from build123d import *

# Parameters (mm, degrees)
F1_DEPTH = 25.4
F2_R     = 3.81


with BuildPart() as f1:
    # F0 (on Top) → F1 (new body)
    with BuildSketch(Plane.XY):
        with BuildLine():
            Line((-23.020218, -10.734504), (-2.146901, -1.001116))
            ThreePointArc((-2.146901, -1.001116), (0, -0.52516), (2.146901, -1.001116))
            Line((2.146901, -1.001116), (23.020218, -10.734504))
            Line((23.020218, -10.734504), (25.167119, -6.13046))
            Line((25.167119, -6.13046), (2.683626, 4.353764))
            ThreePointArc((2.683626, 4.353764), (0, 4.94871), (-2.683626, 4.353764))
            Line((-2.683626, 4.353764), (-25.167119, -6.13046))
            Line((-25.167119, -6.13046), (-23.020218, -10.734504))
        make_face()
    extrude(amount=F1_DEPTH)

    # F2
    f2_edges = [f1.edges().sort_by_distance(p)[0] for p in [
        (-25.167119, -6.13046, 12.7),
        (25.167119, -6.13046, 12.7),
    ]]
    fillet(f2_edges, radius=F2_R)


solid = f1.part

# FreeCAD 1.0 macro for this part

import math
import FreeCAD as App
import Part
import Sketcher

V = App.Vector
Q = App.Units.Quantity


def edges_at(feature, points):
    """Names of the edges that pass closest to the given points."""
    edges = feature.Shape.Edges
    near = lambda p: min(range(len(edges)), key=lambda i: edges[i].distToShape(Part.Vertex(*p))[0])
    return sorted({f"Edge{near(p) + 1}" for p in points})

doc = App.newDocument("Part")
body = doc.addObject("PartDesign::Body", "Body")

sketch1 = body.newObject("Sketcher::SketchObject", "Sketch")
sketch1.AttachmentSupport = (doc.getObject("XY_Plane"), [""])
sketch1.MapMode = "FlatFace"
sketch1.addGeometry([
    Part.LineSegment(V(-23.020218, -10.734504, 0), V(-2.146901, -1.001116, 0)),
    Part.ArcOfCircle(Part.Circle(V(0, -5.605165, 0), V(0, 0, 1), 5.080005), math.radians(65.000025), math.radians(114.999975)),
    Part.LineSegment(V(2.146901, -1.001116, 0), V(23.020218, -10.734504, 0)),
    Part.LineSegment(V(23.020218, -10.734504, 0), V(25.167119, -6.13046, 0)),
    Part.LineSegment(V(25.167119, -6.13046, 0), V(2.683626, 4.353764, 0)),
    Part.ArcOfCircle(Part.Circle(V(0, -1.401286, 0), V(0, 0, 1), 6.349996), math.radians(64.999982), math.radians(115.000018)),
    Part.LineSegment(V(-2.683626, 4.353764, 0), V(-25.167119, -6.13046, 0)),
    Part.LineSegment(V(-25.167119, -6.13046, 0), V(-23.020218, -10.734504, 0)),
], False)
sketch1.addConstraint([
    Sketcher.Constraint("Tangent", 0, 2, 1, 2),
    Sketcher.Constraint("Tangent", 1, 1, 2, 1),
    Sketcher.Constraint("Coincident", 2, 2, 3, 1),
    Sketcher.Constraint("Coincident", 3, 2, 4, 1),
    Sketcher.Constraint("Tangent", 4, 2, 5, 1),
    Sketcher.Constraint("Tangent", 5, 2, 6, 1),
    Sketcher.Constraint("Coincident", 6, 2, 7, 1),
    Sketcher.Constraint("Coincident", 7, 2, 0, 1),
    Sketcher.Constraint("Symmetric", 0, 2, 1, 1, -2),
    Sketcher.Constraint("Symmetric", 4, 2, 5, 2, -2),
    Sketcher.Constraint("Perpendicular", 2, 3),
    Sketcher.Constraint("Perpendicular", 3, 4),
    Sketcher.Constraint("Perpendicular", 6, 7),
    Sketcher.Constraint("Horizontal", 3, 2, 6, 2),
    Sketcher.Constraint("Radius", 5, Q("0.2499998 in")),
    Sketcher.Constraint("Angle", 0, Q("25.000001 deg")),
    Sketcher.Constraint("Distance", 3, Q("0.2 in")),
    Sketcher.Constraint("Radius", 1, Q("5.080005 mm")),
    Sketcher.Constraint("Distance", 4, Q("24.807789 mm")),
    Sketcher.Constraint("DistanceY", 3, 2, -1, 1, Q("6.13046 mm")),
])
pad1 = body.newObject("PartDesign::Pad", "Pad")
pad1.Profile = sketch1
pad1.Length = Q("1 in")
doc.recompute()

fillet = body.newObject("PartDesign::Fillet", "Fillet")
fillet.Base = (pad1, edges_at(pad1, [(-25.167, -6.13, 12.7), (25.167, -6.13, 12.7)]))
fillet.Radius = Q("0.15 in")

doc.recompute()
